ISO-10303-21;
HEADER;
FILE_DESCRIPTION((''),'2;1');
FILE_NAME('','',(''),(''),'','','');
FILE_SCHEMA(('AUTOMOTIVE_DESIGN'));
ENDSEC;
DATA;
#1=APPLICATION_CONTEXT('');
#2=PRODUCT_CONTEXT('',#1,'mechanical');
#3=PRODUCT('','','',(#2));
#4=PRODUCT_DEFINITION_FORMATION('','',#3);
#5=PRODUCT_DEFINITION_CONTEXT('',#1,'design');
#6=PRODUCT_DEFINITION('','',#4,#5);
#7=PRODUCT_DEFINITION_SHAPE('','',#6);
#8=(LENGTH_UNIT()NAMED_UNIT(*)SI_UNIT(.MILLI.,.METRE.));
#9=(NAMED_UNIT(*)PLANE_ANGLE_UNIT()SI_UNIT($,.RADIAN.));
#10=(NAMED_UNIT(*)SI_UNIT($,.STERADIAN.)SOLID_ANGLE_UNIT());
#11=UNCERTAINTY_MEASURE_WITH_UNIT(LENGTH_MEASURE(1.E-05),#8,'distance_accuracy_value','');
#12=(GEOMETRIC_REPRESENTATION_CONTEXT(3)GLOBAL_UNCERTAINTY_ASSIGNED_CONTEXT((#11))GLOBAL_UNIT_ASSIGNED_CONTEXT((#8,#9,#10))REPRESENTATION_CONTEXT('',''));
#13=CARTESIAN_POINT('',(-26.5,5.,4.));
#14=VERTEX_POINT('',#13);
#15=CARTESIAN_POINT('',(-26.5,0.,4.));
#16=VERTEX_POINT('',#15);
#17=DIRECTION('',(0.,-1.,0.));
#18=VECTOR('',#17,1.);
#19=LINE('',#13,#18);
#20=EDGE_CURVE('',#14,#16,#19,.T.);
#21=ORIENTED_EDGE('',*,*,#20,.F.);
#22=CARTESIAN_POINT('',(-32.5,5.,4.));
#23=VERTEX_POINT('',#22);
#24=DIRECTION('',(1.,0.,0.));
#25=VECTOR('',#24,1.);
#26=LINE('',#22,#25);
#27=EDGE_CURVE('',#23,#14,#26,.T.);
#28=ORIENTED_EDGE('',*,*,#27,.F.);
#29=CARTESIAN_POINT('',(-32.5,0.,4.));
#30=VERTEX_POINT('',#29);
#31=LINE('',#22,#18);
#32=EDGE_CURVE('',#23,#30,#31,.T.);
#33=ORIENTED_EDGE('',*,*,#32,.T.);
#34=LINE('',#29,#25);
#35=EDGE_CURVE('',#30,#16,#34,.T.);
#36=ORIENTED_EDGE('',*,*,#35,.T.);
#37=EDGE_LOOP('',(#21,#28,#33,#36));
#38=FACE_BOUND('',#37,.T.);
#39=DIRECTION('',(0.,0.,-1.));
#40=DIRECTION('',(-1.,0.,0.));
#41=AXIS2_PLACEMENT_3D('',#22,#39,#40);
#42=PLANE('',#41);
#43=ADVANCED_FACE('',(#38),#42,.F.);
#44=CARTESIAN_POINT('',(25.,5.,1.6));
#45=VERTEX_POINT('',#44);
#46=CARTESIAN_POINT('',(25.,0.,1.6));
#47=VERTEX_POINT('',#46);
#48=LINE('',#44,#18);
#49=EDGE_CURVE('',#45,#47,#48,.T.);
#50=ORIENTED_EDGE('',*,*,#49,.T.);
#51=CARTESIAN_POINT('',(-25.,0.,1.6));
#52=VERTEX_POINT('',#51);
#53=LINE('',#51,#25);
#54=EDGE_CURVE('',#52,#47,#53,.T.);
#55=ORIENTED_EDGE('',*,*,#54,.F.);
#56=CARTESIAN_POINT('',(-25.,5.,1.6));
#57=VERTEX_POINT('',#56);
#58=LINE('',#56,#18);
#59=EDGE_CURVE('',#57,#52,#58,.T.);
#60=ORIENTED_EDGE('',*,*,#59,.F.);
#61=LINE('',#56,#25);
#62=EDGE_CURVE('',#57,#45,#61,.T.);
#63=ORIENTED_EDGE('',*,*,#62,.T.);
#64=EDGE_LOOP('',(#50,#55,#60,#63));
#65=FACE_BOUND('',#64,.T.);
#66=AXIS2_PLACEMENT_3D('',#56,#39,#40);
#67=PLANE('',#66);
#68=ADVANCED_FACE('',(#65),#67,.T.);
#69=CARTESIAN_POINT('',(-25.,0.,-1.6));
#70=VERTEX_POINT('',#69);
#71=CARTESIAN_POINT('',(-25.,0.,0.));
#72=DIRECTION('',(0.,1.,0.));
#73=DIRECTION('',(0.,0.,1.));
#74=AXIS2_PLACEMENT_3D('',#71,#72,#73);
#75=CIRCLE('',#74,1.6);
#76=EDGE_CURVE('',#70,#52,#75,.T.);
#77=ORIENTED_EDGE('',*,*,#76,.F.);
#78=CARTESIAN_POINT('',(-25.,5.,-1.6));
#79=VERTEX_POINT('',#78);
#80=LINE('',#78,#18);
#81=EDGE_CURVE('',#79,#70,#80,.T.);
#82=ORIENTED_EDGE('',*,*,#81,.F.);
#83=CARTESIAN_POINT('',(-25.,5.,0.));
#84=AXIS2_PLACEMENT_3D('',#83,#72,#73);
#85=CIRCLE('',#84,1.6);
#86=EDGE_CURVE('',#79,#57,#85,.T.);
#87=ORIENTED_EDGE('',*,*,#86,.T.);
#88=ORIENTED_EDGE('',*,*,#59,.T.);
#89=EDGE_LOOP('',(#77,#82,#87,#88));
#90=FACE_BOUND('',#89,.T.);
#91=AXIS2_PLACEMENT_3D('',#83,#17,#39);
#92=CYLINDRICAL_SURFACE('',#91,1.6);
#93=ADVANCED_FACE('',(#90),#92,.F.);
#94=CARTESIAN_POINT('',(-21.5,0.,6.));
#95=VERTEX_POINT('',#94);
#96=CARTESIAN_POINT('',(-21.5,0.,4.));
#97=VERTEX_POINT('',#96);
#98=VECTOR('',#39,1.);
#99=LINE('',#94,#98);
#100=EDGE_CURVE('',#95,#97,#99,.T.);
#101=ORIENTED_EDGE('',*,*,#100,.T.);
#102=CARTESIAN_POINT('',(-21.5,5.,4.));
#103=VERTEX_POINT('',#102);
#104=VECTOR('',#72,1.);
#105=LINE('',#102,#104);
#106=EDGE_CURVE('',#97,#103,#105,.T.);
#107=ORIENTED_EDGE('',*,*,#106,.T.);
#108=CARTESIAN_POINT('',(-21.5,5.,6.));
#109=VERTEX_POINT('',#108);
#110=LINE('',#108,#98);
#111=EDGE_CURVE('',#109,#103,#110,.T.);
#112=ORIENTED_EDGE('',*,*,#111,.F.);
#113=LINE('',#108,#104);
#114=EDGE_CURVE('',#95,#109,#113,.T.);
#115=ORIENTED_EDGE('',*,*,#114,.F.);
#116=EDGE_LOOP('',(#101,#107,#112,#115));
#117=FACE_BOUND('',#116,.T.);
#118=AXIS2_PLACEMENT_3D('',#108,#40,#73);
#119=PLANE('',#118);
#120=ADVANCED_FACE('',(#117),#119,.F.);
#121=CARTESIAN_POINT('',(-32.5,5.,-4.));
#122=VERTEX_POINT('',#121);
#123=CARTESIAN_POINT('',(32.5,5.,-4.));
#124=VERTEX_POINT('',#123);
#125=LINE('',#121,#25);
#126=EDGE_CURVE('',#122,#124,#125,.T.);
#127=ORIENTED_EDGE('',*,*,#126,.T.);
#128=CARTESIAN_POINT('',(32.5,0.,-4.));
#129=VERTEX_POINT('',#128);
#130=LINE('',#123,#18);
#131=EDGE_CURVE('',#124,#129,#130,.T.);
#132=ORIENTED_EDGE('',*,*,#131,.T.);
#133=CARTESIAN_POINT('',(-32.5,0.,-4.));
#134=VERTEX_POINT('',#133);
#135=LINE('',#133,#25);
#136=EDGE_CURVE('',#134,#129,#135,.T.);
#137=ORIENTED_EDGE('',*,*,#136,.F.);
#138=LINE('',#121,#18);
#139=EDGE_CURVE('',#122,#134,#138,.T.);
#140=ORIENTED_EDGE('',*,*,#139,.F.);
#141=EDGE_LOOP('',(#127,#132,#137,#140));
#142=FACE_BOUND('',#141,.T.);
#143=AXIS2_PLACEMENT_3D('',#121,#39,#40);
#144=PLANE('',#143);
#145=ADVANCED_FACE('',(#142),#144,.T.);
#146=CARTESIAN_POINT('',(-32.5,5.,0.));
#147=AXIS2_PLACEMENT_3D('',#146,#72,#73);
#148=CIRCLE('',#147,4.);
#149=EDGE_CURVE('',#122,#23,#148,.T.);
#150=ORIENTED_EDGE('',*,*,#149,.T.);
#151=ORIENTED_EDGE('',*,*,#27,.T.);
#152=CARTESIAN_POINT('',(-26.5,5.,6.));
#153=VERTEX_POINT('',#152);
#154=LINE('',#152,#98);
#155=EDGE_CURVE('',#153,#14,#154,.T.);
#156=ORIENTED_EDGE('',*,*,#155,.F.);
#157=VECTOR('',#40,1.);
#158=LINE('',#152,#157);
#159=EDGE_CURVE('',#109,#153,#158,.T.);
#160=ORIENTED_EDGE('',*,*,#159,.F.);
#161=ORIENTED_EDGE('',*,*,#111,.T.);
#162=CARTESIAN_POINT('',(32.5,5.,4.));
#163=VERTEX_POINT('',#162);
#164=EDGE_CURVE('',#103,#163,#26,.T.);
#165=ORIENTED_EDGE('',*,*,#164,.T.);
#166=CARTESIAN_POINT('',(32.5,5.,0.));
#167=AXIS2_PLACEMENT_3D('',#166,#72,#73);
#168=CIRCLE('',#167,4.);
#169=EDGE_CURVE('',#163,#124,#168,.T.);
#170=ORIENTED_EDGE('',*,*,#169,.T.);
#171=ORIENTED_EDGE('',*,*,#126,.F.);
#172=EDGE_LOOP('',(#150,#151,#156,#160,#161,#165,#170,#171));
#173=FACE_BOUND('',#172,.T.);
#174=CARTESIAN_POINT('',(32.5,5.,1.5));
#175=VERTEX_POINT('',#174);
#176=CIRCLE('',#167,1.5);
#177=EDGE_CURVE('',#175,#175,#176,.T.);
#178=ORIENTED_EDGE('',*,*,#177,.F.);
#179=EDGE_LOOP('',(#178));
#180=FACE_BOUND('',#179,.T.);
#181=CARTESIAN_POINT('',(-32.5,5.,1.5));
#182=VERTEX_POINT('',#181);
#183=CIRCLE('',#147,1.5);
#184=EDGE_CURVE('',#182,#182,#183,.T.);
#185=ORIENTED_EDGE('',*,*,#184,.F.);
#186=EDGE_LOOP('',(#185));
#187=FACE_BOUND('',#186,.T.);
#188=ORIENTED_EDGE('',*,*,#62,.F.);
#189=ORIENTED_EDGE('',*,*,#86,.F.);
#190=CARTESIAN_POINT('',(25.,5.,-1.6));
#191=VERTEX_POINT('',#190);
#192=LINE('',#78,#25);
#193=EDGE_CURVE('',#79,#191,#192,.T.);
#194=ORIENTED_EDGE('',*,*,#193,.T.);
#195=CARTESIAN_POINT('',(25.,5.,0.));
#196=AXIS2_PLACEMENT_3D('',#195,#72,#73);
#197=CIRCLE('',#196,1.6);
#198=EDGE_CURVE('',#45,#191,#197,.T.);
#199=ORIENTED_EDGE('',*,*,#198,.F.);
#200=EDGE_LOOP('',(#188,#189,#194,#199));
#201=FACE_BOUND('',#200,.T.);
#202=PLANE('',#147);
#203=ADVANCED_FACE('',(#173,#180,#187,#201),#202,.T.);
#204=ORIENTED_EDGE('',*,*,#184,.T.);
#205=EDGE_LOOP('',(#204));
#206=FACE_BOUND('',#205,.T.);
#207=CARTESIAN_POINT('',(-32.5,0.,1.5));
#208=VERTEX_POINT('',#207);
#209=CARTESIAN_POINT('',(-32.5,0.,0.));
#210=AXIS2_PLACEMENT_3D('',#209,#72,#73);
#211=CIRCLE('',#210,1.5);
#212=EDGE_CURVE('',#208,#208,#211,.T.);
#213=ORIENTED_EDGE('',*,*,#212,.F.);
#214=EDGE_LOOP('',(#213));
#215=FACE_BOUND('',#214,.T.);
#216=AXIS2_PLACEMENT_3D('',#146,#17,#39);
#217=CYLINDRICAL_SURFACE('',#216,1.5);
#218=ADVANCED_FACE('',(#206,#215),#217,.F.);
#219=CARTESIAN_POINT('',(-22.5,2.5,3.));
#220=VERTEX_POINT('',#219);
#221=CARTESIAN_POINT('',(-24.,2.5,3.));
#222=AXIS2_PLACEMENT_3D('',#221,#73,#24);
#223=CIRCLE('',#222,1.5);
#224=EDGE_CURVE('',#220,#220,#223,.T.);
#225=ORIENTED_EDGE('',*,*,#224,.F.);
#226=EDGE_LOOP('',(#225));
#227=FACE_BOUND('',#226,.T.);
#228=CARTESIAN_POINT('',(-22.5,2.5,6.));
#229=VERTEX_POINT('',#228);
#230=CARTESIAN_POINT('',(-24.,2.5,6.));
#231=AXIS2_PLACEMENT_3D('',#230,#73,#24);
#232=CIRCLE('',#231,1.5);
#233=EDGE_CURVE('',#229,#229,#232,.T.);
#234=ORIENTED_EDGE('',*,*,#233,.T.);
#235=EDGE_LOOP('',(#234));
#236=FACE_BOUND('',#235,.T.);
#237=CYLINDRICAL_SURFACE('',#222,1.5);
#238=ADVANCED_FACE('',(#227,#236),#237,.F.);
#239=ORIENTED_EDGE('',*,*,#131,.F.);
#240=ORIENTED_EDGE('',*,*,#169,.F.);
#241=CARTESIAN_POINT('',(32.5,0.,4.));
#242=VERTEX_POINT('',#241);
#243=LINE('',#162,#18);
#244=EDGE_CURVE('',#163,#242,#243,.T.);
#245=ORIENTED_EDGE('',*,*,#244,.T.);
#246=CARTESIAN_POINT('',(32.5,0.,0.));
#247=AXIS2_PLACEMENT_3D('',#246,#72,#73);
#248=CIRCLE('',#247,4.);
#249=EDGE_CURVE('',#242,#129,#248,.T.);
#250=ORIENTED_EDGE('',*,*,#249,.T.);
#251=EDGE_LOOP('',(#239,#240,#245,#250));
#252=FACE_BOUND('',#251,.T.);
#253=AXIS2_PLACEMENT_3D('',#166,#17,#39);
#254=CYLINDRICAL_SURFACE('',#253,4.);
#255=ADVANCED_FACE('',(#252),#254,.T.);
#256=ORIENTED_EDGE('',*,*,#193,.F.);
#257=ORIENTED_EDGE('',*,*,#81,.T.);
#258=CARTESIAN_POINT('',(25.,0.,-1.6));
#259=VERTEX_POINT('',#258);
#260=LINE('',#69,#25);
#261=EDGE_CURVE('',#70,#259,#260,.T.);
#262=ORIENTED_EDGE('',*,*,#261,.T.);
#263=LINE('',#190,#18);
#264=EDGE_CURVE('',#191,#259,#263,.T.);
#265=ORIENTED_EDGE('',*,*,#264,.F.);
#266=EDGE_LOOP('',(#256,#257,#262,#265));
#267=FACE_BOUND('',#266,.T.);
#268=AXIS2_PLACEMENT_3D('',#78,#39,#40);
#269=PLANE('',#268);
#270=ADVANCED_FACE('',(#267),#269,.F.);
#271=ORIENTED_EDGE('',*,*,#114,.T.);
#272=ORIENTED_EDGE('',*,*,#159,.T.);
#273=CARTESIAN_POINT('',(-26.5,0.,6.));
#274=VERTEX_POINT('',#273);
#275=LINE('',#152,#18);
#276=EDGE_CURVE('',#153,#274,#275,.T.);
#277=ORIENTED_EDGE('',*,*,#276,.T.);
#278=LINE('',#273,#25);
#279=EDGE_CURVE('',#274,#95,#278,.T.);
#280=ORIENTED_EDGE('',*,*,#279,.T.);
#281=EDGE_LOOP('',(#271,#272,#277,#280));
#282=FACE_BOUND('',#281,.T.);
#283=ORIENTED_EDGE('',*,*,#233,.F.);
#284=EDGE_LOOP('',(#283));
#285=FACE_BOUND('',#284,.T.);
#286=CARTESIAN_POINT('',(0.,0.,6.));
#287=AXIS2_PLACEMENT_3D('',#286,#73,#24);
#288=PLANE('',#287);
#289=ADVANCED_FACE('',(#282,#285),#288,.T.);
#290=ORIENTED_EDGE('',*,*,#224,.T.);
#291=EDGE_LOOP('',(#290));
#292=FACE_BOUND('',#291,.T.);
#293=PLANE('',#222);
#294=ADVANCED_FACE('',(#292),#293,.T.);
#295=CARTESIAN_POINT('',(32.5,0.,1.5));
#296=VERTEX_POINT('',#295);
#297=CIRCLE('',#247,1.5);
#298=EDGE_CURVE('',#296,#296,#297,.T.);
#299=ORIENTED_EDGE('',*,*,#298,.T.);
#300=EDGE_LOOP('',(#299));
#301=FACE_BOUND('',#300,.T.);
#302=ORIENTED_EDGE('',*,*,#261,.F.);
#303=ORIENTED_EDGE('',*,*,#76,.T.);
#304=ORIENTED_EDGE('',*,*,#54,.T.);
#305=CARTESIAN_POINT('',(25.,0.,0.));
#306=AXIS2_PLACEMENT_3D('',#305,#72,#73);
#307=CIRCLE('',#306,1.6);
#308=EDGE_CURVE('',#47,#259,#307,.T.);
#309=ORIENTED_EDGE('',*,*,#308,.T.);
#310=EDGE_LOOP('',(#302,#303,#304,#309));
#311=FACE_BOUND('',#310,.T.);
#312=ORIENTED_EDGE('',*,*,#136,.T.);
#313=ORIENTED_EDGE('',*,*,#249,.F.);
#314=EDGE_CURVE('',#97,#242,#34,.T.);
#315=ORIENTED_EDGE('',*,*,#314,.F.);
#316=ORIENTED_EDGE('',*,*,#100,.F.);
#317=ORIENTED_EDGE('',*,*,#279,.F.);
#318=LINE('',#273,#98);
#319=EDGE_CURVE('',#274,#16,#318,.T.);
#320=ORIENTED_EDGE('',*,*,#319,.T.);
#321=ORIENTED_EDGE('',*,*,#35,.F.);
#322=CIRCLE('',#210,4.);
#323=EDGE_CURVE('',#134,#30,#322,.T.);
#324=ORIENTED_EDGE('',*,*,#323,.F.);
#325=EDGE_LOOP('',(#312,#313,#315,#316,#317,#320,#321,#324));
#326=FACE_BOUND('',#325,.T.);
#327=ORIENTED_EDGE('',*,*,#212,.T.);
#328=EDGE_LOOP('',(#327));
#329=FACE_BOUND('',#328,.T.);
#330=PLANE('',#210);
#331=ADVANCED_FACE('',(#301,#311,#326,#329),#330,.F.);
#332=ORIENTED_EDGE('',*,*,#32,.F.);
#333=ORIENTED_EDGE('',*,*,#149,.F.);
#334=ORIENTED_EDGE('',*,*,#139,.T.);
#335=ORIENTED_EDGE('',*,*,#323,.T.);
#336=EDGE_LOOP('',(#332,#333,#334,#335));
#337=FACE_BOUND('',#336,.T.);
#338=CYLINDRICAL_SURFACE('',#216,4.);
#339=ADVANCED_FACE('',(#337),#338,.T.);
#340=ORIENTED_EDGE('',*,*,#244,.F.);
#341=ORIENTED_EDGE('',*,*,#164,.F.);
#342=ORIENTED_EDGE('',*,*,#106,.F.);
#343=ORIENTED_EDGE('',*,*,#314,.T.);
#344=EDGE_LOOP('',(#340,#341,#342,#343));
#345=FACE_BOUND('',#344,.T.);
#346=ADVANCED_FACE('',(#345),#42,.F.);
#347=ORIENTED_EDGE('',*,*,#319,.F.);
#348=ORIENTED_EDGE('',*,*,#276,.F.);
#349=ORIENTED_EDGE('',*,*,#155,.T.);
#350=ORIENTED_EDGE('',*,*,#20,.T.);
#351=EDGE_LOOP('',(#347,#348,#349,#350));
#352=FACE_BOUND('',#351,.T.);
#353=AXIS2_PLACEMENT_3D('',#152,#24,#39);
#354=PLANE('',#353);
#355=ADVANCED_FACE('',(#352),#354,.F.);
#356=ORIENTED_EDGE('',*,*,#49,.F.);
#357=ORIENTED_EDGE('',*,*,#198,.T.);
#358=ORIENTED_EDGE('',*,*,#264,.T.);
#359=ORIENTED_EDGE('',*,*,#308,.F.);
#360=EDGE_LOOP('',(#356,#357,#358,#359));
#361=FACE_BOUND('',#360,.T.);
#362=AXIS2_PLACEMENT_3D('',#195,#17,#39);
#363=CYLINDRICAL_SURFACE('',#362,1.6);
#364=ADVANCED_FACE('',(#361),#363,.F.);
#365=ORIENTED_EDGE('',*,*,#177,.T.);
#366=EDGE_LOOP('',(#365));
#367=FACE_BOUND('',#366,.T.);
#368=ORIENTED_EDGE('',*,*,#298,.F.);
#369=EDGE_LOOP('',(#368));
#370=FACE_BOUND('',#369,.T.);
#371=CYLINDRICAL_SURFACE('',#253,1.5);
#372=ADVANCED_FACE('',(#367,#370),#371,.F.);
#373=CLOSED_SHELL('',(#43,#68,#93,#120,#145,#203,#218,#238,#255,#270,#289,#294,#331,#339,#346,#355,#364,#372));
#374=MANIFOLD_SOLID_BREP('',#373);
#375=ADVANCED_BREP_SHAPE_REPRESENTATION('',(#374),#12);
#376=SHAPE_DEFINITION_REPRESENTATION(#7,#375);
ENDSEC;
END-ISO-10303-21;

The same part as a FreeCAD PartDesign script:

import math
import FreeCAD as App
import Part
import Sketcher
from FreeCAD import Vector


def add_polygon(sketch, points):
    """Adds a closed chain of lines whose ends are joined by coincident constraints."""
    first, n = sketch.GeometryCount, len(points)
    for a, b in zip(points, points[1:] + points[:1]):
        sketch.addGeometry(Part.LineSegment(App.Vector(*a, 0), App.Vector(*b, 0)), False)
    for i in range(n):
        sketch.addConstraint(Sketcher.Constraint("Coincident", first + i, 2, first + (i + 1) % n, 1))

doc = App.newDocument("Part")
params = doc.addObject("Spreadsheet::Sheet", "Params")
for row, (alias, value) in enumerate([
    ("sketch1_diameter", "3 mm"),
    ("sketch1_radius", "4 mm"),
    ("sketch1_radius2", "1.6 mm"),
    ("sketch1_width", "65 mm"),
    ("sketch1_width2", "50 mm"),
    ("pad1_length", "5 mm"),
    ("sketch2_width", "5 mm"),
    ("pad2_length", "2 mm"),
    ("sketch3_diameter", "3 mm"),
    ("pocket1_length", "3 mm"),
], start=1):
    params.set(f"A{row}", alias)
    params.set(f"B{row}", "=" + value)
    params.setAlias(f"B{row}", alias)

body = doc.addObject("PartDesign::Body", "Body")

sketch1 = doc.addObject("Sketcher::SketchObject", "Sketch")
body.addObject(sketch1)
sketch1.AttachmentSupport = (doc.XZ_Plane, [""])
sketch1.MapMode = "FlatFace"
sketch1.addGeometry([
    Part.LineSegment(Vector(32.5, -4, 0), Vector(-32.5, -4, 0)),
    Part.ArcOfCircle(Part.Circle(Vector(-32.5, 0, 0), Vector(0, 0, 1), 4), math.radians(90), math.radians(270)),
    Part.LineSegment(Vector(-32.5, 4, 0), Vector(32.5, 4, 0)),
    Part.ArcOfCircle(Part.Circle(Vector(32.5, 0, 0), Vector(0, 0, 1), 4), math.radians(-90), math.radians(90)),
    Part.Circle(Vector(32.5, 0, 0), Vector(0, 0, 1), 1.5),
    Part.LineSegment(Vector(-25, -1.6, 0), Vector(25, -1.6, 0)),
    Part.ArcOfCircle(Part.Circle(Vector(25, 0, 0), Vector(0, 0, 1), 1.6), math.radians(-90), math.radians(90)),
    Part.LineSegment(Vector(25, 1.6, 0), Vector(-25, 1.6, 0)),
    Part.ArcOfCircle(Part.Circle(Vector(-25, 0, 0), Vector(0, 0, 1), 1.6), math.radians(90), math.radians(270)),
    Part.Circle(Vector(-32.5, 0, 0), Vector(0, 0, 1), 1.5),
], False)
sketch1.addConstraint([
    Sketcher.Constraint("Tangent", 0, 2, 1, 2),
    Sketcher.Constraint("Tangent", 1, 1, 2, 1),
    Sketcher.Constraint("Tangent", 2, 2, 3, 2),
    Sketcher.Constraint("Tangent", 3, 1, 0, 1),
    Sketcher.Constraint("Tangent", 5, 2, 6, 1),
    Sketcher.Constraint("Tangent", 6, 2, 7, 1),
    Sketcher.Constraint("Tangent", 7, 2, 8, 1),
    Sketcher.Constraint("Tangent", 8, 2, 5, 1),
    Sketcher.Constraint("Horizontal", 0),
    Sketcher.Constraint("Horizontal", 2),
    Sketcher.Constraint("Horizontal", 5),
    Sketcher.Constraint("Horizontal", 7),
    Sketcher.Constraint("Coincident", 4, 3, 3, 3),
    Sketcher.Constraint("Coincident", 9, 3, 1, 3),
    Sketcher.Constraint("Equal", 4, 9),
    Sketcher.Constraint("Symmetric", 1, 3, 3, 3, -1, 1),
    Sketcher.Constraint("Symmetric", 6, 3, 8, 3, -1, 1),
    Sketcher.Constraint("Diameter", 4, 3.0),
    Sketcher.Constraint("Radius", 1, 4.0),
    Sketcher.Constraint("Radius", 6, 1.6),
    Sketcher.Constraint("DistanceX", 0, 2, 0, 1, 65.0),
    Sketcher.Constraint("DistanceX", 5, 1, 5, 2, 50.0),
])
sketch1.setExpression("Constraints[17]", "Params.sketch1_diameter")
sketch1.setExpression("Constraints[18]", "Params.sketch1_radius")
sketch1.setExpression("Constraints[19]", "Params.sketch1_radius2")
sketch1.setExpression("Constraints[20]", "Params.sketch1_width")
sketch1.setExpression("Constraints[21]", "Params.sketch1_width2")
pad1 = doc.addObject("PartDesign::Pad", "Pad")
body.addObject(pad1)
pad1.Profile = sketch1
pad1.setExpression("Length", "Params.pad1_length")
pad1.Reversed = True

sketch2 = doc.addObject("Sketcher::SketchObject", "Sketch001")
body.addObject(sketch2)
sketch2.AttachmentSupport = (doc.XY_Plane, [""])
sketch2.MapMode = "FlatFace"
sketch2.AttachmentOffset = App.Placement(Vector(0, 0, 4), App.Rotation())
add_polygon(sketch2, [(-26, 5), (-26, 0), (-22, 0), (-22, 5)])
sketch2.addConstraint([
    Sketcher.Constraint("Vertical", 0),
    Sketcher.Constraint("Horizontal", 1),
    Sketcher.Constraint("Vertical", 2),
    Sketcher.Constraint("Horizontal", 3),
    Sketcher.Constraint("PointOnObject", 0, 2, -1),
    Sketcher.Constraint("Equal", 3, 0),
    Sketcher.Constraint("DistanceX", 1, 1, 1, 2, 5.0),
    Sketcher.Constraint("DistanceX", 0, 2, -1, 1, 26.5),
])
sketch2.setExpression("Constraints[10]", "Params.sketch2_width")
pad2 = doc.addObject("PartDesign::Pad", "Pad001")
body.addObject(pad2)
pad2.Profile = sketch2
pad2.setExpression("Length", "Params.pad2_length")

sketch3 = doc.addObject("Sketcher::SketchObject", "Sketch002")
body.addObject(sketch3)
sketch3.AttachmentSupport = (doc.XY_Plane, [""])
sketch3.MapMode = "FlatFace"
sketch3.AttachmentOffset = App.Placement(Vector(0, 0, 6), App.Rotation())
sketch3.addGeometry(Part.Circle(Vector(-24, 2.5, 0), Vector(0, 0, 1), 1.5), False)
sketch3.addConstraint([
    Sketcher.Constraint("Diameter", 0, 3.0),
    Sketcher.Constraint("DistanceX", 0, 3, -1, 1, 24.0),
    Sketcher.Constraint("DistanceY", -1, 1, 0, 3, 2.5),
])
sketch3.setExpression("Constraints[0]", "Params.sketch3_diameter")
pocket1 = doc.addObject("PartDesign::Pocket", "Pocket")
body.addObject(pocket1)
pocket1.Profile = sketch3
pocket1.setExpression("Length", "Params.pocket1_length")

doc.recompute()
